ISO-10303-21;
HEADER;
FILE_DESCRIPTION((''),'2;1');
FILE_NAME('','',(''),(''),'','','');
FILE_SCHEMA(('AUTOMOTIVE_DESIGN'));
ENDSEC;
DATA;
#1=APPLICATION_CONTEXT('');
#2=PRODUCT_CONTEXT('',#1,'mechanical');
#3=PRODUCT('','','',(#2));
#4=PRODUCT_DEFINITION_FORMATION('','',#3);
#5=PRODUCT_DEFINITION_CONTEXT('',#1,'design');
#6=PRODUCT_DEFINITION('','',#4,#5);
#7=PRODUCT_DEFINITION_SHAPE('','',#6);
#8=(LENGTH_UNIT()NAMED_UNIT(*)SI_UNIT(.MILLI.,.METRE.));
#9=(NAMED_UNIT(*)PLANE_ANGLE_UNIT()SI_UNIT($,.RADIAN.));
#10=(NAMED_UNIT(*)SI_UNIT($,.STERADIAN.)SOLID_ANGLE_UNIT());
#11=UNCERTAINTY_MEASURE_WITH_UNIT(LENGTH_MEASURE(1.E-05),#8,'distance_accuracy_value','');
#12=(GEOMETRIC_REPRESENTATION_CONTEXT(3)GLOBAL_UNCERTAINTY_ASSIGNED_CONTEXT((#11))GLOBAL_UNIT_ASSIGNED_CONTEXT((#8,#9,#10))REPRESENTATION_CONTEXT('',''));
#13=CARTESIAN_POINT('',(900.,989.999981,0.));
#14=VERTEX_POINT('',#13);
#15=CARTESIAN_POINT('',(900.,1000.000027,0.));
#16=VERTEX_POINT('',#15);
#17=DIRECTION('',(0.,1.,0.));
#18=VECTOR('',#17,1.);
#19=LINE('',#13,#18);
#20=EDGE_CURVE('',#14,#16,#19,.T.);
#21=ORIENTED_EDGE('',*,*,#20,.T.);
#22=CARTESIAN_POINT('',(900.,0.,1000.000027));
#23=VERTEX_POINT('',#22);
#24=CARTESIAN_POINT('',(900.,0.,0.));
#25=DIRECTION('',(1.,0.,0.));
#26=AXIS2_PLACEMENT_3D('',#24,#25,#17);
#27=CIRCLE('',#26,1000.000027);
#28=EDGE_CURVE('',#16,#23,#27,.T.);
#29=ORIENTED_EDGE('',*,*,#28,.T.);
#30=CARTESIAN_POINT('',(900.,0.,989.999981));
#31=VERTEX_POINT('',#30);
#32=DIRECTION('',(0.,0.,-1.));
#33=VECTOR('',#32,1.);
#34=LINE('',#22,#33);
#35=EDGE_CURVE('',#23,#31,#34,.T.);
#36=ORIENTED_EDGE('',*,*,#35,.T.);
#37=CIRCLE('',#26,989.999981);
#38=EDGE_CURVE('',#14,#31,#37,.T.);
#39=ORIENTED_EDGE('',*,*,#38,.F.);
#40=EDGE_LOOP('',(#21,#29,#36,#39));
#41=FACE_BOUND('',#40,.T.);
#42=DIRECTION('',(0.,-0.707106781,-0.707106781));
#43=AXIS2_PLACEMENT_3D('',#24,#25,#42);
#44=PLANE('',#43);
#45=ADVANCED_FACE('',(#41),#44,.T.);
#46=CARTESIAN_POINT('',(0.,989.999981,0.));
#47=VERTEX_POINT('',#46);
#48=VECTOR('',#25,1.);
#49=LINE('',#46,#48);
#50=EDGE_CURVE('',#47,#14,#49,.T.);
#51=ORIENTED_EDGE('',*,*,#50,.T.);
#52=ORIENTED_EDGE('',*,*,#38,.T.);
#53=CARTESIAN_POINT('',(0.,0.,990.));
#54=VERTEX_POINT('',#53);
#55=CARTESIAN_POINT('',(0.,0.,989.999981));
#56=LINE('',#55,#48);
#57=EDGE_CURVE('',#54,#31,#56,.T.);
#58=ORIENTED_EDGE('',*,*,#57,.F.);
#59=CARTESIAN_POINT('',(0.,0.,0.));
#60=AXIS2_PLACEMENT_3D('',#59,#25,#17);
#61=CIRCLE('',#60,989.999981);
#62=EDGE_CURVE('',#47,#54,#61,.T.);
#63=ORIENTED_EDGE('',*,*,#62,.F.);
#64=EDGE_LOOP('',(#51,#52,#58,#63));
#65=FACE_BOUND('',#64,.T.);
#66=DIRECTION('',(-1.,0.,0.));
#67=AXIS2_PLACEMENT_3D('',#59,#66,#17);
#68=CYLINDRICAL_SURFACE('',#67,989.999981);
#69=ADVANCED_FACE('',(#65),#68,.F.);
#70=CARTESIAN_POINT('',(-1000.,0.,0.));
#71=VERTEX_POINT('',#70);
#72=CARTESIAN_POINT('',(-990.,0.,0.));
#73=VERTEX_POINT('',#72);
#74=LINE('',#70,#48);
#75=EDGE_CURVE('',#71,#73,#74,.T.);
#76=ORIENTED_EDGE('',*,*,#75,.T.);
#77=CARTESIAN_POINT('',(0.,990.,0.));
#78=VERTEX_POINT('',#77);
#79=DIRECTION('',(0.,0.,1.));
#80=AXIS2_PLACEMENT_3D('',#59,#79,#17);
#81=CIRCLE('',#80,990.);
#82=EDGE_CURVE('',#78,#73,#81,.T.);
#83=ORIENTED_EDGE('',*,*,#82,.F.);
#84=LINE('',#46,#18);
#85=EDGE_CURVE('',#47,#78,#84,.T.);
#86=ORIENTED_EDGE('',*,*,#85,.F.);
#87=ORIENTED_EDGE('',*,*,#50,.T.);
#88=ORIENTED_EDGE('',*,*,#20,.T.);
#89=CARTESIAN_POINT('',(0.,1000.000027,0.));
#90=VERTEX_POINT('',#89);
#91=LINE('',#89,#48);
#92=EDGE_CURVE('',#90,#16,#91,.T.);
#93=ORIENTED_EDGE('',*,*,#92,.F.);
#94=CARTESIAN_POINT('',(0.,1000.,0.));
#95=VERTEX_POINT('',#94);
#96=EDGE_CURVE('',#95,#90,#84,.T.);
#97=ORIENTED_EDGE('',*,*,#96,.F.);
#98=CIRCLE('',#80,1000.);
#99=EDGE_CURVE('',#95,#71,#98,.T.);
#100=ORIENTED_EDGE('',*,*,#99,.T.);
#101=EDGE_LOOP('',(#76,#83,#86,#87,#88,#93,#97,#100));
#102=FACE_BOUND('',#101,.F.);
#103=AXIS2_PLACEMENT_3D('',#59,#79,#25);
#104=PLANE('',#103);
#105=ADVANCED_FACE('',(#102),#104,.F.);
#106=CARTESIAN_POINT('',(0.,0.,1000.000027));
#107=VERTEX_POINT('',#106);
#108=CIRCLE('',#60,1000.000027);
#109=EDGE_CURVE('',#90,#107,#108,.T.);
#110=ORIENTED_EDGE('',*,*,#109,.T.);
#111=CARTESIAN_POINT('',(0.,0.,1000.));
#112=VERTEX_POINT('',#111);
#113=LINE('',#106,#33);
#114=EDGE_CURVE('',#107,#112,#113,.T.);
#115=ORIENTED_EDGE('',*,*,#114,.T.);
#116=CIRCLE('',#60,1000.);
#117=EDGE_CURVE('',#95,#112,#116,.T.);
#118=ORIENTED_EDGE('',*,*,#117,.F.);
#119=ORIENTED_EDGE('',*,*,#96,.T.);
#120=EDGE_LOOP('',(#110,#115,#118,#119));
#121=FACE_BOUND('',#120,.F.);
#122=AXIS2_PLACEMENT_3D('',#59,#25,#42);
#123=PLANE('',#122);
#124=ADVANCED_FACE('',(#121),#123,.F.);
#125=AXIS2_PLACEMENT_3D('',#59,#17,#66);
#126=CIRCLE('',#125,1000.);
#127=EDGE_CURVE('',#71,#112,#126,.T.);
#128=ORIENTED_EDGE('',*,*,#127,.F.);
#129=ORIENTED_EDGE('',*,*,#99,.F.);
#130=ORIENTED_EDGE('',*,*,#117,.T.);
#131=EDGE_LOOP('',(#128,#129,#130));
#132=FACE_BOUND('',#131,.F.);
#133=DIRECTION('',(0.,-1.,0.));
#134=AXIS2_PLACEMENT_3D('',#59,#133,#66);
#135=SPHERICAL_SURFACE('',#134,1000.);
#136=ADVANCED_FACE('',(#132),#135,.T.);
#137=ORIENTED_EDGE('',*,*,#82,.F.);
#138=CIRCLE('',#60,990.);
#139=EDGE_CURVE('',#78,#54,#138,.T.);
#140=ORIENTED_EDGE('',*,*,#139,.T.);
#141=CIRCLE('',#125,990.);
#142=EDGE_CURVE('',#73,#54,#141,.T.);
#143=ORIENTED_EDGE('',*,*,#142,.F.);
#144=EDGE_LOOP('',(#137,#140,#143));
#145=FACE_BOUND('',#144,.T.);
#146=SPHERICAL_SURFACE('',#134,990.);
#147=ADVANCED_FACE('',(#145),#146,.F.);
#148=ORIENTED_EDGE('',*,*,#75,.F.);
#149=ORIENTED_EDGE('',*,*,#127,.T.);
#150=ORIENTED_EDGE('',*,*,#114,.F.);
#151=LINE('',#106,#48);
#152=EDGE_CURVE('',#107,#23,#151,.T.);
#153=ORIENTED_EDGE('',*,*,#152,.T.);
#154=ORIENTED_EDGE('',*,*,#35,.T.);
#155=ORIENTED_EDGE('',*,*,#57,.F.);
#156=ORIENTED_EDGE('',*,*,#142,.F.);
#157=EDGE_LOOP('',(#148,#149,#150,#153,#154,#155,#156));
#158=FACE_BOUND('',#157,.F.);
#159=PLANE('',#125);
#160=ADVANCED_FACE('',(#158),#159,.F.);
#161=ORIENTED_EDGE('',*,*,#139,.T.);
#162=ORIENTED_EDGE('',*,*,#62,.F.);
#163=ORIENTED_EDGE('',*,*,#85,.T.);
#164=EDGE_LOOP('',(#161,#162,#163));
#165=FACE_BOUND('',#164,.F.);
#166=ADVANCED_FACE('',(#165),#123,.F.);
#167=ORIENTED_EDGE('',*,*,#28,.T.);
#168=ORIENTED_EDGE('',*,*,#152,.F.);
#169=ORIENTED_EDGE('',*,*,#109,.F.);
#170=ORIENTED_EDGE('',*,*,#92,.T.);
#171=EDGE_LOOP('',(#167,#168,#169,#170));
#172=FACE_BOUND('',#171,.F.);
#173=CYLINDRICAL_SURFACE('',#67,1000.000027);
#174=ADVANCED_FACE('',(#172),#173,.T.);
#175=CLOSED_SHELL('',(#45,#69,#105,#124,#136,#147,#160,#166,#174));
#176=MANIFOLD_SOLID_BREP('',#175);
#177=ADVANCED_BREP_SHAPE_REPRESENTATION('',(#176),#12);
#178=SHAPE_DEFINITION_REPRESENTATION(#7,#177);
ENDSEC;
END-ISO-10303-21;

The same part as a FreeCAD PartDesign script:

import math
import FreeCAD as App
import Part
import Sketcher
from FreeCAD import Vector

doc = App.newDocument("Part")
params = doc.addObject("Spreadsheet::Sheet", "Params")
for row, (alias, value) in enumerate([
    ("sketch1_radius", "1000 mm"),
    ("sketch1_width", "10 mm"),
    ("revolution_angle", "90 deg"),
    ("sketch2_radius", "1000 mm"),
    ("sketch2_radius2", "990 mm"),
    ("pad1_length", "900 mm"),
], start=1):
    params.set(f"A{row}", alias)
    params.set(f"B{row}", "=" + value)
    params.setAlias(f"B{row}", alias)

body = doc.addObject("PartDesign::Body", "Body")

# Sketch on XY plane
sketch1 = body.newObject("Sketcher::SketchObject", "Sketch")
sketch1.AttachmentSupport = (doc.getObject("XY_Plane"), [""])
sketch1.MapMode = "FlatFace"
sketch1.addGeometry([
    Part.LineSegment(Vector(0, 990, 0), Vector(0, 1000, 0)),
    Part.ArcOfCircle(Part.Circle(Vector(0, 0, 0), Vector(0, 0, 1), 1000), math.radians(90), math.radians(180)),
    Part.LineSegment(Vector(-1000, 0, 0), Vector(-990, 0, 0)),
    Part.ArcOfCircle(Part.Circle(Vector(0, 0, 0), Vector(0, 0, 1), 990), math.radians(90), math.radians(180)),
], False)
sketch1.addConstraint([
    Sketcher.Constraint("Coincident", 0, 2, 1, 1),
    Sketcher.Constraint("Coincident", 1, 2, 2, 1),
    Sketcher.Constraint("Coincident", 2, 2, 3, 2),
    Sketcher.Constraint("Coincident", 3, 1, 0, 1),
    Sketcher.Constraint("Vertical", 0),
    Sketcher.Constraint("Horizontal", 2),
    Sketcher.Constraint("Coincident", 1, 3, -1, 1),
    Sketcher.Constraint("Coincident", 3, 3, -1, 1),
    Sketcher.Constraint("PointOnObject", 0, 2, -2),
    Sketcher.Constraint("PointOnObject", 2, 2, -1),
    Sketcher.Constraint("Radius", 1, 1000.0),
    Sketcher.Constraint("DistanceX", 2, 1, 2, 2, 10.0),
])
sketch1.setExpression("Constraints[10]", "Params.sketch1_radius")
sketch1.setExpression("Constraints[11]", "Params.sketch1_width")
revolution = body.newObject("PartDesign::Revolution", "Revolution")
revolution.Profile = sketch1
revolution.ReferenceAxis = (sketch1, ["V_Axis"])
revolution.setExpression("Angle", "Params.revolution_angle")

# Sketch on YZ plane
sketch2 = body.newObject("Sketcher::SketchObject", "Sketch001")
sketch2.AttachmentSupport = (doc.getObject("YZ_Plane"), [""])
sketch2.MapMode = "FlatFace"
sketch2.addGeometry([
    Part.LineSegment(Vector(989.999981, 0, 0), Vector(1000.000026, 0, 0)),
    Part.ArcOfCircle(Part.Circle(Vector(0, 0, 0), Vector(0, 0, 1), 1000.000027), math.radians(0), math.radians(90)),
    Part.LineSegment(Vector(0, 1000.000026, 0), Vector(0, 989.999981, 0)),
    Part.ArcOfCircle(Part.Circle(Vector(0, 0, 0), Vector(0, 0, 1), 989.999981), math.radians(0), math.radians(90)),
], False)
sketch2.addConstraint([
    Sketcher.Constraint("Coincident", 0, 2, 1, 1),
    Sketcher.Constraint("Coincident", 1, 2, 2, 1),
    Sketcher.Constraint("Coincident", 2, 2, 3, 2),
    Sketcher.Constraint("Coincident", 3, 1, 0, 1),
    Sketcher.Constraint("Horizontal", 0),
    Sketcher.Constraint("Vertical", 2),
    Sketcher.Constraint("Coincident", 1, 3, -1, 1),
    Sketcher.Constraint("Coincident", 3, 3, -1, 1),
    Sketcher.Constraint("PointOnObject", 0, 2, -1),
    Sketcher.Constraint("PointOnObject", 2, 2, -2),
    Sketcher.Constraint("Radius", 1, 1000.0),
    Sketcher.Constraint("Radius", 3, 990.0),
])
sketch2.setExpression("Constraints[10]", "Params.sketch2_radius")
sketch2.setExpression("Constraints[11]", "Params.sketch2_radius2")
pad1 = body.newObject("PartDesign::Pad", "Pad")
pad1.Profile = sketch2
pad1.setExpression("Length", "Params.pad1_length")

doc.recompute()
